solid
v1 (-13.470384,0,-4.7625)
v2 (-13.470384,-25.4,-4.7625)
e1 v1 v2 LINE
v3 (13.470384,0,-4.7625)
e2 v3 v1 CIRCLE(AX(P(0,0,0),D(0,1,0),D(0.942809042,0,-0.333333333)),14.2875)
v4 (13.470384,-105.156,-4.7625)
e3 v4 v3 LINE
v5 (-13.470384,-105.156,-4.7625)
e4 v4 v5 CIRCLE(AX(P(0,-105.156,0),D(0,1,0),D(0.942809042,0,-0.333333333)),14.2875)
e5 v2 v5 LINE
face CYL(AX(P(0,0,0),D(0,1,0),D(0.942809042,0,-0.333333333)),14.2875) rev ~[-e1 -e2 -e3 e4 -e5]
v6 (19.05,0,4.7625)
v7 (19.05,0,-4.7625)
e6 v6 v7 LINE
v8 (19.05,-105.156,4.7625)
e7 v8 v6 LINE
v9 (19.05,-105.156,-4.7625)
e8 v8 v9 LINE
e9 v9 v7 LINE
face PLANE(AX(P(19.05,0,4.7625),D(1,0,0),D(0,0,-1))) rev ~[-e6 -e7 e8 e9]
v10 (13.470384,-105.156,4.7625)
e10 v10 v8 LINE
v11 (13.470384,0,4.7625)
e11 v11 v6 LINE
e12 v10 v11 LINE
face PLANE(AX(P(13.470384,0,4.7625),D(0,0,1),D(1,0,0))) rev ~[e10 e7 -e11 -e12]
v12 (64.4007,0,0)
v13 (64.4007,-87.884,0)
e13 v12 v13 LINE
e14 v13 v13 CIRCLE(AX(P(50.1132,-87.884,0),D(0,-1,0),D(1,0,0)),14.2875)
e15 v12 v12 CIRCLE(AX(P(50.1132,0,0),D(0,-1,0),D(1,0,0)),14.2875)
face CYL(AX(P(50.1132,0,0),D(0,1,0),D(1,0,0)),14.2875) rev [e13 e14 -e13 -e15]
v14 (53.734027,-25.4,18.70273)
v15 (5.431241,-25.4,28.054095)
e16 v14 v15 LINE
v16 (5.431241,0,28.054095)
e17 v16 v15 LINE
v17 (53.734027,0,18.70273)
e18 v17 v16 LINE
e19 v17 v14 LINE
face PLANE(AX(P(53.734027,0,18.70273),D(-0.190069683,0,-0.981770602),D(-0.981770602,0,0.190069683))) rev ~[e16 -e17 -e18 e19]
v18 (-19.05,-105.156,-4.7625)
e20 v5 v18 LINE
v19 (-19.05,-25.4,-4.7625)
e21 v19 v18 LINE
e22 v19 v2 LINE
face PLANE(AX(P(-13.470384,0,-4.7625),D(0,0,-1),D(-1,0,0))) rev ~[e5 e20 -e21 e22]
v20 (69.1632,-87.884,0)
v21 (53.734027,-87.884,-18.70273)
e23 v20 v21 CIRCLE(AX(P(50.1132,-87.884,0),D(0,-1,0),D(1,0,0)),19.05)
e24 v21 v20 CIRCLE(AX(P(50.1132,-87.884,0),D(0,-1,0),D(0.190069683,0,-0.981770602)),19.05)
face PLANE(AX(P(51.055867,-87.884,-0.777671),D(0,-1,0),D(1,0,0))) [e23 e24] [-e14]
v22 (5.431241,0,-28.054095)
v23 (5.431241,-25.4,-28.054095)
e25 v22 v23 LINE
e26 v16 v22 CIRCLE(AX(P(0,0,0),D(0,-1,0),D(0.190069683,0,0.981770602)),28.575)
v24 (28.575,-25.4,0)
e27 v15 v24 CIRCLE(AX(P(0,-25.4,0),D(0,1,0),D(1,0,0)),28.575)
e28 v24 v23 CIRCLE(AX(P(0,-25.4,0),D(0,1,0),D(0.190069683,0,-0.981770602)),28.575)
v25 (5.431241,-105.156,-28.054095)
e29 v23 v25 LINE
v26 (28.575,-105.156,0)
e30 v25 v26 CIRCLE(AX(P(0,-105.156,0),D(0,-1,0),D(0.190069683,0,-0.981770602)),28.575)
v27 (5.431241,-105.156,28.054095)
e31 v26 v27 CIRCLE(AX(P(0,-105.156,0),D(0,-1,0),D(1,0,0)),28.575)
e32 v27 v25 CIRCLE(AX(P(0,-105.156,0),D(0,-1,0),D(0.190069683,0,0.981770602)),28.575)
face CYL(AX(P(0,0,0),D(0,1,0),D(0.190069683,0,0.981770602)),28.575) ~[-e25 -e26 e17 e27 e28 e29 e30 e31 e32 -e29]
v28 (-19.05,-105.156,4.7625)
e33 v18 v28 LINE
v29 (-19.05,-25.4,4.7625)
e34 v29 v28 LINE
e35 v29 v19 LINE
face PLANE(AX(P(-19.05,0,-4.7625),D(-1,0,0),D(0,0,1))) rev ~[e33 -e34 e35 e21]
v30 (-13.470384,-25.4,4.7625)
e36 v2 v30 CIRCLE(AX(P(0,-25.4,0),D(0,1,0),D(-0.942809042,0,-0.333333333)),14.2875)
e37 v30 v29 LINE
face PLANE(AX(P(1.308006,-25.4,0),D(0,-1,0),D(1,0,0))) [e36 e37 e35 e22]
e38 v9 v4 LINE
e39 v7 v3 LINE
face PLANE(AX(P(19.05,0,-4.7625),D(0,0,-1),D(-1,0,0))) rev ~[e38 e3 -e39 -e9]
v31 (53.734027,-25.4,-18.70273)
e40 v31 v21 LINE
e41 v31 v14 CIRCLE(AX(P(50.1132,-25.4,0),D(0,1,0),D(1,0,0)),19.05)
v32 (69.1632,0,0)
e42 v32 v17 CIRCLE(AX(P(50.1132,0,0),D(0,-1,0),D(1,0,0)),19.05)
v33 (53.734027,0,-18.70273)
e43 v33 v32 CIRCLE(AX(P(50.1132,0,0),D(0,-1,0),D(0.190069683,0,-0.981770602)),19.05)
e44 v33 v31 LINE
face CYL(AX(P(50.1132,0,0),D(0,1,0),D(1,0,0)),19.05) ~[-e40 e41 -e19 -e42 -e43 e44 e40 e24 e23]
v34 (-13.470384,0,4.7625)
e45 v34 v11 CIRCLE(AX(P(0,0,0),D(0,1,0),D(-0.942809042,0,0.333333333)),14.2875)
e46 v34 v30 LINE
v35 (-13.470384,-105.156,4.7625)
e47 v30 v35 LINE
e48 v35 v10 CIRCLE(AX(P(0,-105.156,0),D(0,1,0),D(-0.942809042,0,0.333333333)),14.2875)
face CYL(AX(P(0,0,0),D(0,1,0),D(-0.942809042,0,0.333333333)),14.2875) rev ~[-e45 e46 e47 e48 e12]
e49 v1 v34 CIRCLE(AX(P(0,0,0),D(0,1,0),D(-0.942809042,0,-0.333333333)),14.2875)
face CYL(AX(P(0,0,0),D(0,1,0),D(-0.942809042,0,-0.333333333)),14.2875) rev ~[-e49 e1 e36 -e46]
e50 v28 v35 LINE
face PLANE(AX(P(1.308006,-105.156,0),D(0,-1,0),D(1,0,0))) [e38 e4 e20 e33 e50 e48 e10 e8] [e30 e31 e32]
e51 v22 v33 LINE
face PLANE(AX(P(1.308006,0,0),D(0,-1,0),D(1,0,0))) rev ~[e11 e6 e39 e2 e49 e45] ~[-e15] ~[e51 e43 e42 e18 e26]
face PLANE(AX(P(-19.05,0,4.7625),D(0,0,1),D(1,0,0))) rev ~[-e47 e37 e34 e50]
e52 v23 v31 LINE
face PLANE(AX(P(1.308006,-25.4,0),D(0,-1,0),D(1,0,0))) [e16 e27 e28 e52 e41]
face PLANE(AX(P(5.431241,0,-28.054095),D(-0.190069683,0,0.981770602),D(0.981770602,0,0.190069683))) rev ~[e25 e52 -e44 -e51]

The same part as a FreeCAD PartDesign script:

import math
import FreeCAD as App
import Part
import Sketcher
from FreeCAD import Vector
Q = App.Units.Quantity

doc = App.newDocument("Part")
body = doc.addObject("PartDesign::Body", "Body")

# Sketch on XZ plane
sketch1 = body.newObject("Sketcher::SketchObject", "Sketch")
sketch1.AttachmentSupport = (doc.getObject("XZ_Plane"), [""])
sketch1.MapMode = "FlatFace"
sketch1.addGeometry(Part.ArcOfCircle(Part.Circle(Vector(0, 0, 0), Vector(0, 0, 1), 29), math.radians(79), math.radians(281)), False)
sketch1.addGeometry(Part.LineSegment(Vector(5, -28, 0), Vector(54, -19, 0)), False)
sketch1.addGeometry(Part.ArcOfCircle(Part.Circle(Vector(50, 0, 0), Vector(0, 0, 1), 19), math.radians(-79), math.radians(0)), False)
sketch1.addGeometry(Part.ArcOfCircle(Part.Circle(Vector(50, 0, 0), Vector(0, 0, 1), 19), math.radians(0), math.radians(79)), False)
sketch1.addGeometry(Part.LineSegment(Vector(54, 19, 0), Vector(5, 28, 0)), False)
sketch1.addGeometry(Part.ArcOfCircle(Part.Circle(Vector(0, 0, 0), Vector(0, 0, 1), 14), math.radians(19), math.radians(161)), False)
sketch1.addGeometry(Part.LineSegment(Vector(13, 5, 0), Vector(19, 5, 0)), False)
sketch1.addGeometry(Part.LineSegment(Vector(19, 5, 0), Vector(19, -5, 0)), False)
sketch1.addGeometry(Part.LineSegment(Vector(19, -5, 0), Vector(13, -5, 0)), False)
sketch1.addGeometry(Part.ArcOfCircle(Part.Circle(Vector(0, 0, 0), Vector(0, 0, 1), 14), math.radians(-161), math.radians(-19)), False)
sketch1.addGeometry(Part.ArcOfCircle(Part.Circle(Vector(0, 0, 0), Vector(0, 0, 1), 14), math.radians(161), math.radians(199)), False)
sketch1.addGeometry(Part.Circle(Vector(50, 0, 0), Vector(0, 0, 1), 14), False)
sketch1.addConstraint(Sketcher.Constraint("Tangent", 0, 2, 1, 1))
sketch1.addConstraint(Sketcher.Constraint("Tangent", 1, 2, 2, 1))
sketch1.addConstraint(Sketcher.Constraint("Tangent", 2, 2, 3, 1))
sketch1.addConstraint(Sketcher.Constraint("Tangent", 3, 2, 4, 1))
sketch1.addConstraint(Sketcher.Constraint("Tangent", 4, 2, 0, 1))
sketch1.addConstraint(Sketcher.Constraint("Coincident", 5, 1, 6, 1))
sketch1.addConstraint(Sketcher.Constraint("Coincident", 6, 2, 7, 1))
sketch1.addConstraint(Sketcher.Constraint("Coincident", 7, 2, 8, 1))
sketch1.addConstraint(Sketcher.Constraint("Coincident", 8, 2, 9, 2))
sketch1.addConstraint(Sketcher.Constraint("Tangent", 9, 1, 10, 2))
sketch1.addConstraint(Sketcher.Constraint("Tangent", 10, 1, 5, 2))
sketch1.addConstraint(Sketcher.Constraint("Horizontal", 6))
sketch1.addConstraint(Sketcher.Constraint("Vertical", 7))
sketch1.addConstraint(Sketcher.Constraint("Horizontal", 8))
sketch1.addConstraint(Sketcher.Constraint("Coincident", 0, 3, -1, 1))
sketch1.addConstraint(Sketcher.Constraint("Coincident", 5, 3, -1, 1))
sketch1.addConstraint(Sketcher.Constraint("Coincident", 9, 3, -1, 1))
sketch1.addConstraint(Sketcher.Constraint("Coincident", 11, 3, 2, 3))
sketch1.addConstraint(Sketcher.Constraint("Equal", 2, 3))
sketch1.addConstraint(Sketcher.Constraint("Equal", 10, 11))
sketch1.addConstraint(Sketcher.Constraint("PointOnObject", 2, 3, -1))
sketch1.addConstraint(Sketcher.Constraint("PointOnObject", 2, 2, -1))
sketch1.addConstraint(Sketcher.Constraint("Horizontal", 8, 2, 9, 1))
sketch1.addConstraint(Sketcher.Constraint("Horizontal", 6, 2, 10, 1))
sketch1.addConstraint(Sketcher.Constraint("Vertical", 5, 1, 8, 2))
sketch1.addConstraint(Sketcher.Constraint("Radius", 2, Q("0.75 in")))
sketch1.addConstraint(Sketcher.Constraint("Diameter", 11, Q("1.125 in")))
sketch1.addConstraint(Sketcher.Constraint("Radius", 0, Q("1.125 in")))
sketch1.addConstraint(Sketcher.Constraint("DistanceY", 7, 2, 7, 1, Q("0.375 in")))
sketch1.addConstraint(Sketcher.Constraint("DistanceX", -1, 1, 6, 2, Q("0.75 in")))
sketch1.addConstraint(Sketcher.Constraint("DistanceX", -1, 1, 2, 3, Q("50.1132 mm")))
pad1 = body.newObject("PartDesign::Pad", "Pad")
pad1.Profile = sketch1
pad1.Length = Q("1 in")

# Sketch on XZ plane
sketch2 = body.newObject("Sketcher::SketchObject", "Sketch001")
sketch2.AttachmentSupport = (doc.getObject("XZ_Plane"), [""])
sketch2.MapMode = "FlatFace"
sketch2.addGeometry(Part.ArcOfCircle(Part.Circle(Vector(0, 0, 0), Vector(0, 0, 1), 29), math.radians(-79), math.radians(0)), False)
sketch2.addGeometry(Part.ArcOfCircle(Part.Circle(Vector(0, 0, 0), Vector(0, 0, 1), 29), math.radians(0), math.radians(79)), False)
sketch2.addGeometry(Part.ArcOfCircle(Part.Circle(Vector(0, 0, 0), Vector(0, 0, 1), 29), math.radians(79), math.radians(281)), False)
sketch2.addGeometry(Part.LineSegment(Vector(-19, 5, 0), Vector(-13, 5, 0)), False)
sketch2.addGeometry(Part.ArcOfCircle(Part.Circle(Vector(0, 0, 0), Vector(0, 0, 1), 14), math.radians(19), math.radians(161)), False)
sketch2.addGeometry(Part.LineSegment(Vector(13, 5, 0), Vector(19, 5, 0)), False)
sketch2.addGeometry(Part.LineSegment(Vector(19, 5, 0), Vector(19, -5, 0)), False)
sketch2.addGeometry(Part.LineSegment(Vector(19, -5, 0), Vector(13, -5, 0)), False)
sketch2.addGeometry(Part.ArcOfCircle(Part.Circle(Vector(0, 0, 0), Vector(0, 0, 1), 14), math.radians(-161), math.radians(-19)), False)
sketch2.addGeometry(Part.LineSegment(Vector(-13, -5, 0), Vector(-19, -5, 0)), False)
sketch2.addGeometry(Part.LineSegment(Vector(-19, -5, 0), Vector(-19, 5, 0)), False)
sketch2.addConstraint(Sketcher.Constraint("Tangent", 0, 2, 1, 1))
sketch2.addConstraint(Sketcher.Constraint("Tangent", 1, 2, 2, 1))
sketch2.addConstraint(Sketcher.Constraint("Tangent", 2, 2, 0, 1))
sketch2.addConstraint(Sketcher.Constraint("Coincident", 3, 2, 4, 2))
sketch2.addConstraint(Sketcher.Constraint("Coincident", 4, 1, 5, 1))
sketch2.addConstraint(Sketcher.Constraint("Coincident", 5, 2, 6, 1))
sketch2.addConstraint(Sketcher.Constraint("Coincident", 6, 2, 7, 1))
sketch2.addConstraint(Sketcher.Constraint("Coincident", 7, 2, 8, 2))
sketch2.addConstraint(Sketcher.Constraint("Coincident", 8, 1, 9, 1))
sketch2.addConstraint(Sketcher.Constraint("Coincident", 9, 2, 10, 1))
sketch2.addConstraint(Sketcher.Constraint("Coincident", 10, 2, 3, 1))
sketch2.addConstraint(Sketcher.Constraint("Horizontal", 3))
sketch2.addConstraint(Sketcher.Constraint("Horizontal", 5))
sketch2.addConstraint(Sketcher.Constraint("Vertical", 6))
sketch2.addConstraint(Sketcher.Constraint("Horizontal", 7))
sketch2.addConstraint(Sketcher.Constraint("Horizontal", 9))
sketch2.addConstraint(Sketcher.Constraint("Vertical", 10))
sketch2.addConstraint(Sketcher.Constraint("Coincident", 0, 3, -1, 1))
sketch2.addConstraint(Sketcher.Constraint("Coincident", 4, 3, -1, 1))
sketch2.addConstraint(Sketcher.Constraint("Coincident", 8, 3, -1, 1))
sketch2.addConstraint(Sketcher.Constraint("Equal", 4, 8))
sketch2.addConstraint(Sketcher.Constraint("Symmetric", 5, 2, 9, 2, -1, 1))
sketch2.addConstraint(Sketcher.Constraint("PointOnObject", 0, 2, -1))
sketch2.addConstraint(Sketcher.Constraint("Horizontal", 3, 2, 4, 1))
sketch2.addConstraint(Sketcher.Constraint("Horizontal", 7, 2, 8, 1))
sketch2.addConstraint(Sketcher.Constraint("Vertical", 1, 2, 2, 2))
sketch2.addConstraint(Sketcher.Constraint("Radius", 0, Q("1.125 in")))
sketch2.addConstraint(Sketcher.Constraint("Radius", 4, Q("0.5625 in")))
sketch2.addConstraint(Sketcher.Constraint("DistanceY", 6, 2, 6, 1, Q("0.375 in")))
sketch2.addConstraint(Sketcher.Constraint("DistanceX", -1, 1, 5, 2, Q("0.75 in")))
sketch2.addConstraint(Sketcher.Constraint("DistanceX", -1, 1, 1, 2, Q("5.431241 mm")))
pad2 = body.newObject("PartDesign::Pad", "Pad001")
pad2.Profile = sketch2
pad2.Length = Q("4.14 in")

# Sketch on XZ plane
sketch3 = body.newObject("Sketcher::SketchObject", "Sketch002")
sketch3.AttachmentSupport = (doc.getObject("XZ_Plane"), [""])
sketch3.MapMode = "FlatFace"
sketch3.addGeometry(Part.ArcOfCircle(Part.Circle(Vector(50, 0, 0), Vector(0, 0, 1), 19), math.radians(0), math.radians(281)), False)
sketch3.addGeometry(Part.ArcOfCircle(Part.Circle(Vector(50, 0, 0), Vector(0, 0, 1), 19), math.radians(-79), math.radians(0)), False)
sketch3.addGeometry(Part.Circle(Vector(50, 0, 0), Vector(0, 0, 1), 14), False)
sketch3.addConstraint(Sketcher.Constraint("Tangent", 0, 1, 1, 2))
sketch3.addConstraint(Sketcher.Constraint("Coincident", 1, 1, 0, 2))
sketch3.addConstraint(Sketcher.Constraint("Coincident", 2, 3, 0, 3))
sketch3.addConstraint(Sketcher.Constraint("PointOnObject", 0, 3, -1))
sketch3.addConstraint(Sketcher.Constraint("PointOnObject", 0, 1, -1))
sketch3.addConstraint(Sketcher.Constraint("Radius", 0, Q("0.75 in")))
sketch3.addConstraint(Sketcher.Constraint("Diameter", 2, Q("1.125 in")))
sketch3.addConstraint(Sketcher.Constraint("DistanceX", -1, 1, 0, 3, Q("50.1132 mm")))
sketch3.addConstraint(Sketcher.Constraint("DistanceY", 1, 1, -1, 1, Q("18.70273 mm")))
pad3 = body.newObject("PartDesign::Pad", "Pad002")
pad3.Profile = sketch3
pad3.Length = Q("3.46 in")

doc.recompute()
